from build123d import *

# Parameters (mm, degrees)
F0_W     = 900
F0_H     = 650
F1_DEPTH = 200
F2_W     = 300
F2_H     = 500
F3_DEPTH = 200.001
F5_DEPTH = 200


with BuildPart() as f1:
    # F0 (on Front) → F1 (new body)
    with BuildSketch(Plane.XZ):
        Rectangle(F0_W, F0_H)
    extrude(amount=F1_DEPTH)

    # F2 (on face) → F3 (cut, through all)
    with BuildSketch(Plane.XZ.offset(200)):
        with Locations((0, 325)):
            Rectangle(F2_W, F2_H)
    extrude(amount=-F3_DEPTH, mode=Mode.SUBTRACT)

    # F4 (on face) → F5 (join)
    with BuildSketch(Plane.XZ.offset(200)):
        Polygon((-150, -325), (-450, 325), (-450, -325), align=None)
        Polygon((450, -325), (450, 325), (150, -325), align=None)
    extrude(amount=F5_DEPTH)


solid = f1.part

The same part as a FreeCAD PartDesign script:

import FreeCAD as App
import Part
import Sketcher

V = App.Vector


def add_polygon(sketch, points):
    """Adds a closed chain of lines whose ends are joined by coincident constraints."""
    first, n = sketch.GeometryCount, len(points)
    for a, b in zip(points, points[1:] + points[:1]):
        sketch.addGeometry(Part.LineSegment(App.Vector(*a, 0), App.Vector(*b, 0)), False)
    for i in range(n):
        sketch.addConstraint(Sketcher.Constraint("Coincident", first + i, 2, first + (i + 1) % n, 1))

doc = App.newDocument("Part")
body = doc.addObject("PartDesign::Body", "Body")

# Sketch on XZ plane
sketch1 = body.newObject("Sketcher::SketchObject", "Sketch")
sketch1.AttachmentSupport = (doc.getObject("XZ_Plane"), [""])
sketch1.MapMode = "FlatFace"
add_polygon(sketch1, [(-450, 325), (-450, -325), (450, -325), (450, 325)])  # lines 0-3
sketch1.addConstraint(Sketcher.Constraint("Vertical", 0))
sketch1.addConstraint(Sketcher.Constraint("Horizontal", 1))
sketch1.addConstraint(Sketcher.Constraint("Vertical", 2))
sketch1.addConstraint(Sketcher.Constraint("Horizontal", 3))
sketch1.addConstraint(Sketcher.Constraint("Symmetric", 0, 2, 2, 2, -1, 1))
sketch1.addConstraint(Sketcher.Constraint("DistanceX", 1, 1, 1, 2, 900.0))
sketch1.addConstraint(Sketcher.Constraint("DistanceY", 0, 2, 0, 1, 650.0))
pad1 = body.newObject("PartDesign::Pad", "Pad")
pad1.Profile = sketch1
pad1.Length = 200

# Sketch on XZ plane
sketch2 = body.newObject("Sketcher::SketchObject", "Sketch001")
sketch2.AttachmentSupport = (doc.getObject("XZ_Plane"), [""])
sketch2.MapMode = "FlatFace"
sketch2.AttachmentOffset = App.Placement(V(0, 0, 200), App.Rotation())
add_polygon(sketch2, [(-150, 575), (-150, 75), (150, 75), (150, 575)])  # lines 0-3
sketch2.addConstraint(Sketcher.Constraint("Vertical", 0))
sketch2.addConstraint(Sketcher.Constraint("Horizontal", 1))
sketch2.addConstraint(Sketcher.Constraint("Vertical", 2))
sketch2.addConstraint(Sketcher.Constraint("Horizontal", 3))
sketch2.addConstraint(Sketcher.Constraint("DistanceX", 1, 1, 1, 2, 300.0))
sketch2.addConstraint(Sketcher.Constraint("DistanceY", 0, 2, 0, 1, 500.0))
sketch2.addConstraint(Sketcher.Constraint("DistanceX", 0, 2, -1, 1, 150.0))
sketch2.addConstraint(Sketcher.Constraint("DistanceY", -1, 1, 0, 2, 75.0))
pocket1 = body.newObject("PartDesign::Pocket", "Pocket")
pocket1.Profile = sketch2
pocket1.Type = "ThroughAll"

# Sketch on XZ plane
sketch3 = body.newObject("Sketcher::SketchObject", "Sketch002")
sketch3.AttachmentSupport = (doc.getObject("XZ_Plane"), [""])
sketch3.MapMode = "FlatFace"
sketch3.AttachmentOffset = App.Placement(V(0, 0, 200), App.Rotation())
add_polygon(sketch3, [(-150, -325), (-450, 325), (-450, -325)])  # lines 0-2
add_polygon(sketch3, [(450, -325), (450, 325), (150, -325)])  # lines 3-5
sketch3.addConstraint(Sketcher.Constraint("Vertical", 1))
sketch3.addConstraint(Sketcher.Constraint("Horizontal", 2))
sketch3.addConstraint(Sketcher.Constraint("Vertical", 3))
sketch3.addConstraint(Sketcher.Constraint("Horizontal", 5))
sketch3.addConstraint(Sketcher.Constraint("Symmetric", 1, 2, 3, 2, -1, 1))
sketch3.addConstraint(Sketcher.Constraint("Symmetric", 2, 2, 4, 2, -2))
sketch3.addConstraint(Sketcher.Constraint("Horizontal", 0, 2, 3, 2))
sketch3.addConstraint(Sketcher.Constraint("DistanceX", 2, 1, 2, 2, 300.0))
sketch3.addConstraint(Sketcher.Constraint("DistanceY", 1, 2, 1, 1, 650.0))
sketch3.addConstraint(Sketcher.Constraint("DistanceX", 0, 2, -1, 1, 450.0))
pad2 = body.newObject("PartDesign::Pad", "Pad001")
pad2.Profile = sketch3
pad2.Length = 200

doc.recompute()
